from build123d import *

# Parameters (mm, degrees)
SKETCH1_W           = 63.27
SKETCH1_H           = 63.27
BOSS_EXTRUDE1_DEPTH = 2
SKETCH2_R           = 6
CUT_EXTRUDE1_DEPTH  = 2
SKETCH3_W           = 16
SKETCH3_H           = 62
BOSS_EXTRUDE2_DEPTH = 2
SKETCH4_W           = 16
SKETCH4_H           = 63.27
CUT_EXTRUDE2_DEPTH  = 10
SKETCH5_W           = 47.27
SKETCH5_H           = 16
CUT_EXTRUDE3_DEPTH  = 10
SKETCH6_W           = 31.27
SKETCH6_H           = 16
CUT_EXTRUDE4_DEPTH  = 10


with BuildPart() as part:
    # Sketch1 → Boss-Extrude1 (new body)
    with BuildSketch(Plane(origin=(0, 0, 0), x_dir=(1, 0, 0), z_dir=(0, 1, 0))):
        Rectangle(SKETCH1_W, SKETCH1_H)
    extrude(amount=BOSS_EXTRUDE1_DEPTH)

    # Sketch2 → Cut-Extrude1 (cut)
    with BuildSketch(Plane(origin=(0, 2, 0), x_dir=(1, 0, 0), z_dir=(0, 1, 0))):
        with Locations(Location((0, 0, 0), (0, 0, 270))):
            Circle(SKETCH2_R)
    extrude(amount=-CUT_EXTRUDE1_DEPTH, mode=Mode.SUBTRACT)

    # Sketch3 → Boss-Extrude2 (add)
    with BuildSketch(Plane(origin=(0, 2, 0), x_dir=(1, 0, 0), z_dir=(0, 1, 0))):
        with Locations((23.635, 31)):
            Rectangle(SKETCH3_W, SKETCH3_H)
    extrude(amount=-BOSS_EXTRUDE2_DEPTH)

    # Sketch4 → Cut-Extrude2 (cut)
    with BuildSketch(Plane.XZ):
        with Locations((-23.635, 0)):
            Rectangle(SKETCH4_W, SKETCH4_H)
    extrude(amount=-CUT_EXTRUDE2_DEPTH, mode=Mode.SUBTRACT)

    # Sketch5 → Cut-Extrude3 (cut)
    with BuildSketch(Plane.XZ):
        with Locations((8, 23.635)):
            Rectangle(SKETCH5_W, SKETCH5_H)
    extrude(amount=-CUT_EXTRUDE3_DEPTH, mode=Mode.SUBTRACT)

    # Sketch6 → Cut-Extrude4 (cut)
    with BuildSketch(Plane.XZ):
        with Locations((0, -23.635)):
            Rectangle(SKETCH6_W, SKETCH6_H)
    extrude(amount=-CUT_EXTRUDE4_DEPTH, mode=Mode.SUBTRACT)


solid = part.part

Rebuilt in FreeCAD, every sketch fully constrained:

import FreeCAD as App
import Part
import Sketcher

V = App.Vector


def add_polygon(sketch, points):
    """Adds a closed chain of lines whose ends are joined by coincident constraints."""
    first, n = sketch.GeometryCount, len(points)
    for a, b in zip(points, points[1:] + points[:1]):
        sketch.addGeometry(Part.LineSegment(App.Vector(*a, 0), App.Vector(*b, 0)), False)
    for i in range(n):
        sketch.addConstraint(Sketcher.Constraint("Coincident", first + i, 2, first + (i + 1) % n, 1))

doc = App.newDocument("Part")
body = doc.addObject("PartDesign::Body", "Body")

# Sketch on XZ plane
sketch1 = body.newObject("Sketcher::SketchObject", "Sketch")
sketch1.AttachmentSupport = (doc.getObject("XZ_Plane"), [""])
sketch1.MapMode = "FlatFace"
add_polygon(sketch1, [(-32, -32), (-32, 32), (32, 32), (32, -32)])  # lines 0-3
sketch1.addConstraint([
    Sketcher.Constraint("Vertical", 0),
    Sketcher.Constraint("Horizontal", 1),
    Sketcher.Constraint("Vertical", 2),
    Sketcher.Constraint("Horizontal", 3),
    Sketcher.Constraint("Symmetric", 0, 2, 2, 2, -1, 1),
    Sketcher.Constraint("Equal", 3, 0),
    Sketcher.Constraint("DistanceX", 1, 1, 1, 2, 63.27),
])
pad1 = body.newObject("PartDesign::Pad", "Pad")
pad1.Profile = sketch1
pad1.Length = 2
pad1.Reversed = True

# Sketch on XZ plane
sketch2 = body.newObject("Sketcher::SketchObject", "Sketch001")
sketch2.AttachmentSupport = (doc.getObject("XZ_Plane"), [""])
sketch2.MapMode = "FlatFace"
sketch2.AttachmentOffset = App.Placement(V(0, 0, -2), App.Rotation())
sketch2.addGeometry(Part.Circle(V(0, 0, 0), V(0, 0, 1), 6), False)
sketch2.addConstraint([
    Sketcher.Constraint("Coincident", 0, 3, -1, 1),
    Sketcher.Constraint("Diameter", 0, 12.0),
])
pocket1 = body.newObject("PartDesign::Pocket", "Pocket")
pocket1.Profile = sketch2
pocket1.Length = 2
pocket1.Reversed = True

# Sketch on XZ plane
sketch3 = body.newObject("Sketcher::SketchObject", "Sketch002")
sketch3.AttachmentSupport = (doc.getObject("XZ_Plane"), [""])
sketch3.MapMode = "FlatFace"
sketch3.AttachmentOffset = App.Placement(V(0, 0, -2), App.Rotation())
add_polygon(sketch3, [(16, -62), (16, 0), (32, 0), (32, -62)])  # lines 0-3
sketch3.addConstraint([
    Sketcher.Constraint("Vertical", 0),
    Sketcher.Constraint("Horizontal", 1),
    Sketcher.Constraint("Vertical", 2),
    Sketcher.Constraint("Horizontal", 3),
    Sketcher.Constraint("PointOnObject", 0, 2, -1),
    Sketcher.Constraint("DistanceX", 1, 1, 1, 2, 16.0),
    Sketcher.Constraint("DistanceY", 0, 1, 0, 2, 62.0),
    Sketcher.Constraint("DistanceX", -1, 1, 0, 2, 15.635),
])
pad2 = body.newObject("PartDesign::Pad", "Pad001")
pad2.Profile = sketch3
pad2.Length = 2

# Sketch on XZ plane
sketch4 = body.newObject("Sketcher::SketchObject", "Sketch003")
sketch4.AttachmentSupport = (doc.getObject("XZ_Plane"), [""])
sketch4.MapMode = "FlatFace"
add_polygon(sketch4, [(-32, 32), (-32, -32), (-16, -32), (-16, 32)])  # lines 0-3
sketch4.addConstraint([
    Sketcher.Constraint("Vertical", 0),
    Sketcher.Constraint("Horizontal", 1),
    Sketcher.Constraint("Vertical", 2),
    Sketcher.Constraint("Horizontal", 3),
    Sketcher.Constraint("DistanceX", 1, 1, 1, 2, 16.0),
    Sketcher.Constraint("DistanceY", 0, 2, 0, 1, 63.27),
    Sketcher.Constraint("DistanceX", 0, 2, -1, 1, 31.635),
    Sketcher.Constraint("DistanceY", 0, 2, -1, 1, 31.635),
])
pocket2 = body.newObject("PartDesign::Pocket", "Pocket001")
pocket2.Profile = sketch4
pocket2.Length = 10

# Sketch on XZ plane
sketch5 = body.newObject("Sketcher::SketchObject", "Sketch004")
sketch5.AttachmentSupport = (doc.getObject("XZ_Plane"), [""])
sketch5.MapMode = "FlatFace"
add_polygon(sketch5, [(-16, 32), (-16, 16), (32, 16), (32, 32)])  # lines 0-3
sketch5.addConstraint([
    Sketcher.Constraint("Vertical", 0),
    Sketcher.Constraint("Horizontal", 1),
    Sketcher.Constraint("Vertical", 2),
    Sketcher.Constraint("Horizontal", 3),
    Sketcher.Constraint("DistanceY", 0, 2, 0, 1, 16.0),
    Sketcher.Constraint("DistanceX", 1, 1, 1, 2, 47.27),
    Sketcher.Constraint("DistanceX", 0, 2, -1, 1, 15.635),
    Sketcher.Constraint("DistanceY", -1, 1, 0, 2, 15.635),
])
pocket3 = body.newObject("PartDesign::Pocket", "Pocket002")
pocket3.Profile = sketch5
pocket3.Length = 10

# Sketch on XZ plane
sketch6 = body.newObject("Sketcher::SketchObject", "Sketch005")
sketch6.AttachmentSupport = (doc.getObject("XZ_Plane"), [""])
sketch6.MapMode = "FlatFace"
add_polygon(sketch6, [(-16, -16), (-16, -32), (16, -32), (16, -16)])  # lines 0-3
sketch6.addConstraint([
    Sketcher.Constraint("Vertical", 0),
    Sketcher.Constraint("Horizontal", 1),
    Sketcher.Constraint("Vertical", 2),
    Sketcher.Constraint("Horizontal", 3),
    Sketcher.Constraint("DistanceY", 0, 2, 0, 1, 16.0),
    Sketcher.Constraint("DistanceX", 1, 1, 1, 2, 31.27),
    Sketcher.Constraint("DistanceX", 0, 2, -1, 1, 15.635),
    Sketcher.Constraint("DistanceY", 0, 2, -1, 1, 31.635),
])
pocket4 = body.newObject("PartDesign::Pocket", "Pocket003")
pocket4.Profile = sketch6
pocket4.Length = 10

doc.recompute()
